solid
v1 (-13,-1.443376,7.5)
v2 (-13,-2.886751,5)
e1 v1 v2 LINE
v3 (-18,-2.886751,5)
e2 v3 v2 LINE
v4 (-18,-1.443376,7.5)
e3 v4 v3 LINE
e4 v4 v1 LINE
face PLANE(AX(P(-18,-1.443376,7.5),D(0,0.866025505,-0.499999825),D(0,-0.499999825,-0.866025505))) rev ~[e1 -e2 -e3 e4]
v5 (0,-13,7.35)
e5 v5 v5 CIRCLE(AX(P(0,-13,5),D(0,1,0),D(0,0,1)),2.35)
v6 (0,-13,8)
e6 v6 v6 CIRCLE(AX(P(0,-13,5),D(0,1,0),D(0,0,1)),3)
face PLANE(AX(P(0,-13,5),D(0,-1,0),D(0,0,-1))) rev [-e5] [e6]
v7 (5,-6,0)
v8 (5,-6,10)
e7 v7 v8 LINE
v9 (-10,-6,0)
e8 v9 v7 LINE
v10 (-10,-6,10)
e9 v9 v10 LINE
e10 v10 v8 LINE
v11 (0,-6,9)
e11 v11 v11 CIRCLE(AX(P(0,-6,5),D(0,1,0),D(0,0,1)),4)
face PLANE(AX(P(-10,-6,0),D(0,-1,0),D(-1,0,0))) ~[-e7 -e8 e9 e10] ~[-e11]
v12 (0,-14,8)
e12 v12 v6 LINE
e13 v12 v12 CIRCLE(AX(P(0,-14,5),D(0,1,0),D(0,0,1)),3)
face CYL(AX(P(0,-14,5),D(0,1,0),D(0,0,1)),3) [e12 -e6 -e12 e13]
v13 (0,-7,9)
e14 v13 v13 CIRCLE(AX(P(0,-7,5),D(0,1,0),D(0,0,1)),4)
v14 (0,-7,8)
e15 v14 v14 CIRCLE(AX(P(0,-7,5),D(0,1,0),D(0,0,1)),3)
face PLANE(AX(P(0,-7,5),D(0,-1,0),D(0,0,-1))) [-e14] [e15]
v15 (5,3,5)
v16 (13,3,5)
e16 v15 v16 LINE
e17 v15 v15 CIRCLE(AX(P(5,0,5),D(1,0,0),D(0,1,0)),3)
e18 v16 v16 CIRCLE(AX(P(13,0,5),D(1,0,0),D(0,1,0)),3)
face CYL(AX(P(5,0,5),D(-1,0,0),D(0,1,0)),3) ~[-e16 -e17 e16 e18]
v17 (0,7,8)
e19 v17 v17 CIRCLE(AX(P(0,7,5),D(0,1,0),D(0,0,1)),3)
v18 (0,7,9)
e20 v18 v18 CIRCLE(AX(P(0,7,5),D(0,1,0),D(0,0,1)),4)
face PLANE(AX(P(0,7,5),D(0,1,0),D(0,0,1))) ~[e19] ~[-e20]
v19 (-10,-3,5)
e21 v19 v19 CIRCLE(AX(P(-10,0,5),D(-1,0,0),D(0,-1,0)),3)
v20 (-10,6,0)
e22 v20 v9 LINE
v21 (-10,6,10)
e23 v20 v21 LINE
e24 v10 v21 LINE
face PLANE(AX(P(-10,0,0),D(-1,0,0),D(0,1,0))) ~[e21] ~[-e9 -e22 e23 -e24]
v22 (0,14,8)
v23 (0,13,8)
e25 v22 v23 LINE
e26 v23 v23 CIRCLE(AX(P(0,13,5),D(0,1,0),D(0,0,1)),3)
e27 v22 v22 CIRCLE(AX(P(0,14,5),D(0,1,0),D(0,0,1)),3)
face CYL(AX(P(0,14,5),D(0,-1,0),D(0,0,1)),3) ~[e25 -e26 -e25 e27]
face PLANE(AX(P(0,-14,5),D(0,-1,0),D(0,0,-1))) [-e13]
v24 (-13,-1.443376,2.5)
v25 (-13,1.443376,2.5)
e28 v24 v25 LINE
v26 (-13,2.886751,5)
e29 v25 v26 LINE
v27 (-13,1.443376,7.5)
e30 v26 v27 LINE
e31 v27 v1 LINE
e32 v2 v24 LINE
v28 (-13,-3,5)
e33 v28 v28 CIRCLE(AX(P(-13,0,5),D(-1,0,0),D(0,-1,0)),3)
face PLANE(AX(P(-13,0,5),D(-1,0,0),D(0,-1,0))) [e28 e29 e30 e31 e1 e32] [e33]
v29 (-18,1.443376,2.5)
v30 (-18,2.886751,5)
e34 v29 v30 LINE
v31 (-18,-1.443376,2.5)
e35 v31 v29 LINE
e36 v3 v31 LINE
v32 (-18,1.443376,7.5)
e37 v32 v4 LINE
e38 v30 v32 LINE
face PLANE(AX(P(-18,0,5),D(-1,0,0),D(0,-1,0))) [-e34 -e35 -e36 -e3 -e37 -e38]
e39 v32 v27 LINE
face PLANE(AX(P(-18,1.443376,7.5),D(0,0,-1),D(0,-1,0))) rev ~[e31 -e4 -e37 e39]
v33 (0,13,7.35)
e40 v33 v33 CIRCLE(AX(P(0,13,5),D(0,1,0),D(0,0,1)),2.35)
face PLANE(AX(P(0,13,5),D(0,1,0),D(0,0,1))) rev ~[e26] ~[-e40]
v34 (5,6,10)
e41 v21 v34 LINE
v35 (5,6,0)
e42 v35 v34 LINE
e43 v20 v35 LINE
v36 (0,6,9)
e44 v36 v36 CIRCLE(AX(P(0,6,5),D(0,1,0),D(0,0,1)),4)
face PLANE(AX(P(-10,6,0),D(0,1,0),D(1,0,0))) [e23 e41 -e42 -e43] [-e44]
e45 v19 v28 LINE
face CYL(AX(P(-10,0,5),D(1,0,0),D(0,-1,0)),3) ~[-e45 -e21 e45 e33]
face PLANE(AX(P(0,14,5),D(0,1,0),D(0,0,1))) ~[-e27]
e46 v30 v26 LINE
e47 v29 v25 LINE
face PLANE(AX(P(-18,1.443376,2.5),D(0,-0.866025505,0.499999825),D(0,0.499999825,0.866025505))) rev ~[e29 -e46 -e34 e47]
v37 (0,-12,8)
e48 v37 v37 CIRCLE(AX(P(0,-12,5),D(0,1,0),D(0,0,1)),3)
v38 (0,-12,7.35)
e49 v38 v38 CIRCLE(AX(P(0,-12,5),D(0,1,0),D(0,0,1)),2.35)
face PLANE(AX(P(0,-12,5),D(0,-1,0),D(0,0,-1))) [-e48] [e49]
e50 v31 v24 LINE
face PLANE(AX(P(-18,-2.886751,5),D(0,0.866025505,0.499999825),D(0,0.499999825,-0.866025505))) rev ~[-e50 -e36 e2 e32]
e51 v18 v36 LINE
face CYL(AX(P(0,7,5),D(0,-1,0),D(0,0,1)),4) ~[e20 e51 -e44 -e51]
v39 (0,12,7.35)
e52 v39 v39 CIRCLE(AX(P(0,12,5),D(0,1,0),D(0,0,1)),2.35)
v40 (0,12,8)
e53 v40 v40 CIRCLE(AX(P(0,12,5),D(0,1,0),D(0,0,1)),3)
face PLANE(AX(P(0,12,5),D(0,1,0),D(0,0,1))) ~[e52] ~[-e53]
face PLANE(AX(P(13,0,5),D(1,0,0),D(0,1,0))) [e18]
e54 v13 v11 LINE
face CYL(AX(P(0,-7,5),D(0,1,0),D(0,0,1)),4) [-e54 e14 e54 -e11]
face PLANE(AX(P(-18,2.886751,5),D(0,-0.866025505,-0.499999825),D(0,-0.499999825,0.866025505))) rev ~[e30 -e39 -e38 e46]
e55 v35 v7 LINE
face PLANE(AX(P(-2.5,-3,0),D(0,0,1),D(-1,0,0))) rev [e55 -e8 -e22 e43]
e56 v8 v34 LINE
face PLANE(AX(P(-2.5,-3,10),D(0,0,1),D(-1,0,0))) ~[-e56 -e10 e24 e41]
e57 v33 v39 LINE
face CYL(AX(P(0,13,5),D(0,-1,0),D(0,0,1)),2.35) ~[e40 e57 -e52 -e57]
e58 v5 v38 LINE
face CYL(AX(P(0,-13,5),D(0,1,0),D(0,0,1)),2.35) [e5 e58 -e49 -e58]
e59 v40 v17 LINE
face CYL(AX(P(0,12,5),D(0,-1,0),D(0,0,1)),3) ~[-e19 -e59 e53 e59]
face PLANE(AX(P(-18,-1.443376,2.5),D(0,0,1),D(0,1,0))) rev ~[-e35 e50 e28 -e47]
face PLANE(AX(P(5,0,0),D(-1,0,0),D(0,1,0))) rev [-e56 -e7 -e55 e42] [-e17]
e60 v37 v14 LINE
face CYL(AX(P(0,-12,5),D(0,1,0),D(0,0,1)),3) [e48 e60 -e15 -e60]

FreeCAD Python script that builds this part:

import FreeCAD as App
import Part
import Sketcher
Q = App.Units.Quantity

doc = App.newDocument("Part")
body = doc.addObject("PartDesign::Body", "Body")

# Sketch on XY plane
sketch1 = body.newObject("Sketcher::SketchObject", "Sketch")
sketch1.AttachmentSupport = (doc.getObject("XY_Plane"), [""])
sketch1.MapMode = "FlatFace"
sketch1.addGeometry(Part.LineSegment(App.Vector(-10, 6, 0), App.Vector(-10, 0, 0)), False)
sketch1.addGeometry(Part.LineSegment(App.Vector(-10, 0, 0), App.Vector(5, 0, 0)), False)
sketch1.addGeometry(Part.LineSegment(App.Vector(5, 0, 0), App.Vector(5, 6, 0)), False)
sketch1.addGeometry(Part.LineSegment(App.Vector(5, 6, 0), App.Vector(-10, 6, 0)), False)
sketch1.addConstraint(Sketcher.Constraint("Coincident", 0, 2, 1, 1))
sketch1.addConstraint(Sketcher.Constraint("Coincident", 1, 2, 2, 1))
sketch1.addConstraint(Sketcher.Constraint("Coincident", 2, 2, 3, 1))
sketch1.addConstraint(Sketcher.Constraint("Coincident", 3, 2, 0, 1))
sketch1.addConstraint(Sketcher.Constraint("Vertical", 0))
sketch1.addConstraint(Sketcher.Constraint("Horizontal", 1))
sketch1.addConstraint(Sketcher.Constraint("Vertical", 2))
sketch1.addConstraint(Sketcher.Constraint("Horizontal", 3))
sketch1.addConstraint(Sketcher.Constraint("PointOnObject", 0, 2, -1))
sketch1.addConstraint(Sketcher.Constraint("DistanceX", 1, 1, 1, 2, Q("15 mm")))
sketch1.addConstraint(Sketcher.Constraint("DistanceY", 0, 2, 0, 1, Q("6 mm")))
sketch1.addConstraint(Sketcher.Constraint("DistanceX", 0, 2, -1, 1, Q("10 mm")))
pad1 = body.newObject("PartDesign::Pad", "Pad")
pad1.Profile = sketch1
pad1.Length = 10

# Sketch on YZ plane
sketch2 = body.newObject("Sketcher::SketchObject", "Sketch001")
sketch2.AttachmentSupport = (doc.getObject("YZ_Plane"), [""])
sketch2.MapMode = "FlatFace"
sketch2.addGeometry(Part.LineSegment(App.Vector(6, 9, 0), App.Vector(6, 5, 0)), False)
sketch2.addGeometry(Part.LineSegment(App.Vector(6, 5, 0), App.Vector(14, 5, 0)), False)
sketch2.addGeometry(Part.LineSegment(App.Vector(14, 5, 0), App.Vector(14, 8, 0)), False)
sketch2.addGeometry(Part.LineSegment(App.Vector(14, 8, 0), App.Vector(13, 8, 0)), False)
sketch2.addGeometry(Part.LineSegment(App.Vector(13, 8, 0), App.Vector(13, 7.3, 0)), False)
sketch2.addGeometry(Part.LineSegment(App.Vector(13, 7.3, 0), App.Vector(12, 7.3, 0)), False)
sketch2.addGeometry(Part.LineSegment(App.Vector(12, 7.3, 0), App.Vector(12, 8, 0)), False)
sketch2.addGeometry(Part.LineSegment(App.Vector(12, 8, 0), App.Vector(7, 8, 0)), False)
sketch2.addGeometry(Part.LineSegment(App.Vector(7, 8, 0), App.Vector(7, 9, 0)), False)
sketch2.addGeometry(Part.LineSegment(App.Vector(7, 9, 0), App.Vector(6, 9, 0)), False)
sketch2.addGeometry(Part.LineSegment(App.Vector(6, 5, 0), App.Vector(14, 5, 0)), True)  # axis
sketch2.addConstraint(Sketcher.Constraint("Coincident", 0, 2, 1, 1))
sketch2.addConstraint(Sketcher.Constraint("Coincident", 1, 2, 2, 1))
sketch2.addConstraint(Sketcher.Constraint("Coincident", 2, 2, 3, 1))
sketch2.addConstraint(Sketcher.Constraint("Coincident", 3, 2, 4, 1))
sketch2.addConstraint(Sketcher.Constraint("Coincident", 4, 2, 5, 1))
sketch2.addConstraint(Sketcher.Constraint("Coincident", 5, 2, 6, 1))
sketch2.addConstraint(Sketcher.Constraint("Coincident", 6, 2, 7, 1))
sketch2.addConstraint(Sketcher.Constraint("Coincident", 7, 2, 8, 1))
sketch2.addConstraint(Sketcher.Constraint("Coincident", 8, 2, 9, 1))
sketch2.addConstraint(Sketcher.Constraint("Coincident", 9, 2, 0, 1))
sketch2.addConstraint(Sketcher.Constraint("Vertical", 0))
sketch2.addConstraint(Sketcher.Constraint("Horizontal", 1))
sketch2.addConstraint(Sketcher.Constraint("Vertical", 2))
sketch2.addConstraint(Sketcher.Constraint("Horizontal", 3))
sketch2.addConstraint(Sketcher.Constraint("Vertical", 4))
sketch2.addConstraint(Sketcher.Constraint("Horizontal", 5))
sketch2.addConstraint(Sketcher.Constraint("Vertical", 6))
sketch2.addConstraint(Sketcher.Constraint("Horizontal", 7))
sketch2.addConstraint(Sketcher.Constraint("Vertical", 8))
sketch2.addConstraint(Sketcher.Constraint("Horizontal", 9))
sketch2.addConstraint(Sketcher.Constraint("Horizontal", 10))
sketch2.addConstraint(Sketcher.Constraint("Coincident", 10, 1, 0, 2))
sketch2.addConstraint(Sketcher.Constraint("Horizontal", 3, 2, 6, 2))
sketch2.addConstraint(Sketcher.Constraint("Vertical", 2, 2, 10, 2))
sketch2.addConstraint(Sketcher.Constraint("Equal", 3, 5))
sketch2.addConstraint(Sketcher.Constraint("Equal", 5, 9))
sketch2.addConstraint(Sketcher.Constraint("Equal", 9, 8))
sketch2.addConstraint(Sketcher.Constraint("DistanceX", 1, 1, 1, 2, Q("8 mm")))
sketch2.addConstraint(Sketcher.Constraint("DistanceX", 3, 2, 3, 1, Q("1 mm")))
sketch2.addConstraint(Sketcher.Constraint("DistanceY", 0, 2, 0, 1, Q("4 mm")))
sketch2.addConstraint(Sketcher.Constraint("DistanceX", -1, 1, 0, 2, Q("6 mm")))
sketch2.addConstraint(Sketcher.Constraint("DistanceY", -1, 1, 0, 2, Q("5 mm")))
sketch2.addConstraint(Sketcher.Constraint("DistanceY", 4, 2, 4, 1, Q("0.65 mm")))
revolution = body.newObject("PartDesign::Revolution", "Revolution")
revolution.Profile = sketch2
revolution.ReferenceAxis = (sketch2, ["Axis0"])
revolution.Angle = 360
body2 = doc.addObject("PartDesign::Body", "Body001")
doc.recompute()

body2.BaseFeature = body
doc.recompute()

mirroring = doc.addObject("Part::Mirroring", "Mirroring")
mirroring.Source = body
mirroring.Base = App.Vector(0, 0, 0)
mirroring.Normal = App.Vector(0, -1, 0)
body3 = doc.addObject("PartDesign::Body", "Body002")
body3.BaseFeature = mirroring
boolean = body2.newObject("PartDesign::Boolean", "Boolean")
boolean.Type = "Fuse"
boolean.addObjects([body3])
doc.recompute()

# Sketch on YZ plane
sketch3 = body2.newObject("Sketcher::SketchObject", "Sketch002")
sketch3.AttachmentSupport = (doc.getObject("YZ_Plane001"), [""])
sketch3.MapMode = "FlatFace"
sketch3.AttachmentOffset = App.Placement(App.Vector(0, 0, 5), App.Rotation())
sketch3.addGeometry(Part.Circle(App.Vector(0, 5, 0), App.Vector(0, 0, 1), 3), False)
sketch3.addConstraint(Sketcher.Constraint("PointOnObject", 0, 3, -2))
sketch3.addConstraint(Sketcher.Constraint("Diameter", 0, Q("6 mm")))
sketch3.addConstraint(Sketcher.Constraint("DistanceY", -1, 1, 0, 3, Q("5 mm")))
pad2 = body2.newObject("PartDesign::Pad", "Pad001")
pad2.Profile = sketch3
pad2.Length = 8

# Sketch on YZ plane
sketch4 = body2.newObject("Sketcher::SketchObject", "Sketch003")
sketch4.AttachmentSupport = (doc.getObject("YZ_Plane001"), [""])
sketch4.MapMode = "FlatFace"
sketch4.AttachmentOffset = App.Placement(App.Vector(0, 0, -10), App.Rotation())
sketch4.addGeometry(Part.Circle(App.Vector(0, 5, 0), App.Vector(0, 0, 1), 3), False)
sketch4.addConstraint(Sketcher.Constraint("PointOnObject", 0, 3, -2))
sketch4.addConstraint(Sketcher.Constraint("Diameter", 0, Q("6 mm")))
sketch4.addConstraint(Sketcher.Constraint("DistanceY", -1, 1, 0, 3, Q("5 mm")))
pad3 = body2.newObject("PartDesign::Pad", "Pad002")
pad3.Profile = sketch4
pad3.Length = 8
pad3.Reversed = True

# Sketch on YZ plane
sketch5 = body2.newObject("Sketcher::SketchObject", "Sketch004")
sketch5.AttachmentSupport = (doc.getObject("YZ_Plane001"), [""])
sketch5.MapMode = "FlatFace"
sketch5.AttachmentOffset = App.Placement(App.Vector(0, 0, -18), App.Rotation())
sketch5.addGeometry(Part.Circle(App.Vector(0, 5, 0), App.Vector(0, 0, 1), 3), False)
sketch5.addGeometry(Part.LineSegment(App.Vector(2.9, 5, 0), App.Vector(1.4, 7.5, 0)), False)
sketch5.addGeometry(Part.LineSegment(App.Vector(1.4, 7.5, 0), App.Vector(-1.4, 7.5, 0)), False)
sketch5.addGeometry(Part.LineSegment(App.Vector(-1.4, 7.5, 0), App.Vector(-2.9, 5, 0)), False)
sketch5.addGeometry(Part.LineSegment(App.Vector(-2.9, 5, 0), App.Vector(-1.4, 2.5, 0)), False)
sketch5.addGeometry(Part.LineSegment(App.Vector(-1.4, 2.5, 0), App.Vector(1.4, 2.5, 0)), False)
sketch5.addGeometry(Part.LineSegment(App.Vector(1.4, 2.5, 0), App.Vector(2.9, 5, 0)), False)
sketch5.addConstraint(Sketcher.Constraint("Coincident", 1, 2, 2, 1))
sketch5.addConstraint(Sketcher.Constraint("Coincident", 2, 2, 3, 1))
sketch5.addConstraint(Sketcher.Constraint("Coincident", 3, 2, 4, 1))
sketch5.addConstraint(Sketcher.Constraint("Coincident", 4, 2, 5, 1))
sketch5.addConstraint(Sketcher.Constraint("Coincident", 5, 2, 6, 1))
sketch5.addConstraint(Sketcher.Constraint("Coincident", 6, 2, 1, 1))
sketch5.addConstraint(Sketcher.Constraint("Horizontal", 2))
sketch5.addConstraint(Sketcher.Constraint("Horizontal", 5))
sketch5.addConstraint(Sketcher.Constraint("Symmetric", 3, 2, 6, 2, -2))
sketch5.addConstraint(Sketcher.Constraint("PointOnObject", 0, 3, -2))
sketch5.addConstraint(Sketcher.Constraint("Parallel", 1, 4))
sketch5.addConstraint(Sketcher.Constraint("Parallel", 3, 6))
sketch5.addConstraint(Sketcher.Constraint("Horizontal", 0, 3, 3, 2))
sketch5.addConstraint(Sketcher.Constraint("Vertical", 2, 2, 4, 2))
sketch5.addConstraint(Sketcher.Constraint("Vertical", 1, 2, 5, 2))
sketch5.addConstraint(Sketcher.Constraint("Diameter", 0, Q("6 mm")))
sketch5.addConstraint(Sketcher.Constraint("Angle", 1, Q("119.999988 deg")))
sketch5.addConstraint(Sketcher.Constraint("DistanceY", -1, 1, 0, 3, Q("5 mm")))
sketch5.addConstraint(Sketcher.Constraint("DistanceY", 4, 2, 2, 2, Q("5 mm")))
sketch5.addConstraint(Sketcher.Constraint("DistanceX", 2, 2, 2, 1, Q("2.886752 mm")))
pocket1 = body2.newObject("PartDesign::Pocket", "Pocket")
pocket1.Profile = sketch5
pocket1.Length = 5
pocket1.Reversed = True
mirroring.Visibility = False

doc.recompute()
